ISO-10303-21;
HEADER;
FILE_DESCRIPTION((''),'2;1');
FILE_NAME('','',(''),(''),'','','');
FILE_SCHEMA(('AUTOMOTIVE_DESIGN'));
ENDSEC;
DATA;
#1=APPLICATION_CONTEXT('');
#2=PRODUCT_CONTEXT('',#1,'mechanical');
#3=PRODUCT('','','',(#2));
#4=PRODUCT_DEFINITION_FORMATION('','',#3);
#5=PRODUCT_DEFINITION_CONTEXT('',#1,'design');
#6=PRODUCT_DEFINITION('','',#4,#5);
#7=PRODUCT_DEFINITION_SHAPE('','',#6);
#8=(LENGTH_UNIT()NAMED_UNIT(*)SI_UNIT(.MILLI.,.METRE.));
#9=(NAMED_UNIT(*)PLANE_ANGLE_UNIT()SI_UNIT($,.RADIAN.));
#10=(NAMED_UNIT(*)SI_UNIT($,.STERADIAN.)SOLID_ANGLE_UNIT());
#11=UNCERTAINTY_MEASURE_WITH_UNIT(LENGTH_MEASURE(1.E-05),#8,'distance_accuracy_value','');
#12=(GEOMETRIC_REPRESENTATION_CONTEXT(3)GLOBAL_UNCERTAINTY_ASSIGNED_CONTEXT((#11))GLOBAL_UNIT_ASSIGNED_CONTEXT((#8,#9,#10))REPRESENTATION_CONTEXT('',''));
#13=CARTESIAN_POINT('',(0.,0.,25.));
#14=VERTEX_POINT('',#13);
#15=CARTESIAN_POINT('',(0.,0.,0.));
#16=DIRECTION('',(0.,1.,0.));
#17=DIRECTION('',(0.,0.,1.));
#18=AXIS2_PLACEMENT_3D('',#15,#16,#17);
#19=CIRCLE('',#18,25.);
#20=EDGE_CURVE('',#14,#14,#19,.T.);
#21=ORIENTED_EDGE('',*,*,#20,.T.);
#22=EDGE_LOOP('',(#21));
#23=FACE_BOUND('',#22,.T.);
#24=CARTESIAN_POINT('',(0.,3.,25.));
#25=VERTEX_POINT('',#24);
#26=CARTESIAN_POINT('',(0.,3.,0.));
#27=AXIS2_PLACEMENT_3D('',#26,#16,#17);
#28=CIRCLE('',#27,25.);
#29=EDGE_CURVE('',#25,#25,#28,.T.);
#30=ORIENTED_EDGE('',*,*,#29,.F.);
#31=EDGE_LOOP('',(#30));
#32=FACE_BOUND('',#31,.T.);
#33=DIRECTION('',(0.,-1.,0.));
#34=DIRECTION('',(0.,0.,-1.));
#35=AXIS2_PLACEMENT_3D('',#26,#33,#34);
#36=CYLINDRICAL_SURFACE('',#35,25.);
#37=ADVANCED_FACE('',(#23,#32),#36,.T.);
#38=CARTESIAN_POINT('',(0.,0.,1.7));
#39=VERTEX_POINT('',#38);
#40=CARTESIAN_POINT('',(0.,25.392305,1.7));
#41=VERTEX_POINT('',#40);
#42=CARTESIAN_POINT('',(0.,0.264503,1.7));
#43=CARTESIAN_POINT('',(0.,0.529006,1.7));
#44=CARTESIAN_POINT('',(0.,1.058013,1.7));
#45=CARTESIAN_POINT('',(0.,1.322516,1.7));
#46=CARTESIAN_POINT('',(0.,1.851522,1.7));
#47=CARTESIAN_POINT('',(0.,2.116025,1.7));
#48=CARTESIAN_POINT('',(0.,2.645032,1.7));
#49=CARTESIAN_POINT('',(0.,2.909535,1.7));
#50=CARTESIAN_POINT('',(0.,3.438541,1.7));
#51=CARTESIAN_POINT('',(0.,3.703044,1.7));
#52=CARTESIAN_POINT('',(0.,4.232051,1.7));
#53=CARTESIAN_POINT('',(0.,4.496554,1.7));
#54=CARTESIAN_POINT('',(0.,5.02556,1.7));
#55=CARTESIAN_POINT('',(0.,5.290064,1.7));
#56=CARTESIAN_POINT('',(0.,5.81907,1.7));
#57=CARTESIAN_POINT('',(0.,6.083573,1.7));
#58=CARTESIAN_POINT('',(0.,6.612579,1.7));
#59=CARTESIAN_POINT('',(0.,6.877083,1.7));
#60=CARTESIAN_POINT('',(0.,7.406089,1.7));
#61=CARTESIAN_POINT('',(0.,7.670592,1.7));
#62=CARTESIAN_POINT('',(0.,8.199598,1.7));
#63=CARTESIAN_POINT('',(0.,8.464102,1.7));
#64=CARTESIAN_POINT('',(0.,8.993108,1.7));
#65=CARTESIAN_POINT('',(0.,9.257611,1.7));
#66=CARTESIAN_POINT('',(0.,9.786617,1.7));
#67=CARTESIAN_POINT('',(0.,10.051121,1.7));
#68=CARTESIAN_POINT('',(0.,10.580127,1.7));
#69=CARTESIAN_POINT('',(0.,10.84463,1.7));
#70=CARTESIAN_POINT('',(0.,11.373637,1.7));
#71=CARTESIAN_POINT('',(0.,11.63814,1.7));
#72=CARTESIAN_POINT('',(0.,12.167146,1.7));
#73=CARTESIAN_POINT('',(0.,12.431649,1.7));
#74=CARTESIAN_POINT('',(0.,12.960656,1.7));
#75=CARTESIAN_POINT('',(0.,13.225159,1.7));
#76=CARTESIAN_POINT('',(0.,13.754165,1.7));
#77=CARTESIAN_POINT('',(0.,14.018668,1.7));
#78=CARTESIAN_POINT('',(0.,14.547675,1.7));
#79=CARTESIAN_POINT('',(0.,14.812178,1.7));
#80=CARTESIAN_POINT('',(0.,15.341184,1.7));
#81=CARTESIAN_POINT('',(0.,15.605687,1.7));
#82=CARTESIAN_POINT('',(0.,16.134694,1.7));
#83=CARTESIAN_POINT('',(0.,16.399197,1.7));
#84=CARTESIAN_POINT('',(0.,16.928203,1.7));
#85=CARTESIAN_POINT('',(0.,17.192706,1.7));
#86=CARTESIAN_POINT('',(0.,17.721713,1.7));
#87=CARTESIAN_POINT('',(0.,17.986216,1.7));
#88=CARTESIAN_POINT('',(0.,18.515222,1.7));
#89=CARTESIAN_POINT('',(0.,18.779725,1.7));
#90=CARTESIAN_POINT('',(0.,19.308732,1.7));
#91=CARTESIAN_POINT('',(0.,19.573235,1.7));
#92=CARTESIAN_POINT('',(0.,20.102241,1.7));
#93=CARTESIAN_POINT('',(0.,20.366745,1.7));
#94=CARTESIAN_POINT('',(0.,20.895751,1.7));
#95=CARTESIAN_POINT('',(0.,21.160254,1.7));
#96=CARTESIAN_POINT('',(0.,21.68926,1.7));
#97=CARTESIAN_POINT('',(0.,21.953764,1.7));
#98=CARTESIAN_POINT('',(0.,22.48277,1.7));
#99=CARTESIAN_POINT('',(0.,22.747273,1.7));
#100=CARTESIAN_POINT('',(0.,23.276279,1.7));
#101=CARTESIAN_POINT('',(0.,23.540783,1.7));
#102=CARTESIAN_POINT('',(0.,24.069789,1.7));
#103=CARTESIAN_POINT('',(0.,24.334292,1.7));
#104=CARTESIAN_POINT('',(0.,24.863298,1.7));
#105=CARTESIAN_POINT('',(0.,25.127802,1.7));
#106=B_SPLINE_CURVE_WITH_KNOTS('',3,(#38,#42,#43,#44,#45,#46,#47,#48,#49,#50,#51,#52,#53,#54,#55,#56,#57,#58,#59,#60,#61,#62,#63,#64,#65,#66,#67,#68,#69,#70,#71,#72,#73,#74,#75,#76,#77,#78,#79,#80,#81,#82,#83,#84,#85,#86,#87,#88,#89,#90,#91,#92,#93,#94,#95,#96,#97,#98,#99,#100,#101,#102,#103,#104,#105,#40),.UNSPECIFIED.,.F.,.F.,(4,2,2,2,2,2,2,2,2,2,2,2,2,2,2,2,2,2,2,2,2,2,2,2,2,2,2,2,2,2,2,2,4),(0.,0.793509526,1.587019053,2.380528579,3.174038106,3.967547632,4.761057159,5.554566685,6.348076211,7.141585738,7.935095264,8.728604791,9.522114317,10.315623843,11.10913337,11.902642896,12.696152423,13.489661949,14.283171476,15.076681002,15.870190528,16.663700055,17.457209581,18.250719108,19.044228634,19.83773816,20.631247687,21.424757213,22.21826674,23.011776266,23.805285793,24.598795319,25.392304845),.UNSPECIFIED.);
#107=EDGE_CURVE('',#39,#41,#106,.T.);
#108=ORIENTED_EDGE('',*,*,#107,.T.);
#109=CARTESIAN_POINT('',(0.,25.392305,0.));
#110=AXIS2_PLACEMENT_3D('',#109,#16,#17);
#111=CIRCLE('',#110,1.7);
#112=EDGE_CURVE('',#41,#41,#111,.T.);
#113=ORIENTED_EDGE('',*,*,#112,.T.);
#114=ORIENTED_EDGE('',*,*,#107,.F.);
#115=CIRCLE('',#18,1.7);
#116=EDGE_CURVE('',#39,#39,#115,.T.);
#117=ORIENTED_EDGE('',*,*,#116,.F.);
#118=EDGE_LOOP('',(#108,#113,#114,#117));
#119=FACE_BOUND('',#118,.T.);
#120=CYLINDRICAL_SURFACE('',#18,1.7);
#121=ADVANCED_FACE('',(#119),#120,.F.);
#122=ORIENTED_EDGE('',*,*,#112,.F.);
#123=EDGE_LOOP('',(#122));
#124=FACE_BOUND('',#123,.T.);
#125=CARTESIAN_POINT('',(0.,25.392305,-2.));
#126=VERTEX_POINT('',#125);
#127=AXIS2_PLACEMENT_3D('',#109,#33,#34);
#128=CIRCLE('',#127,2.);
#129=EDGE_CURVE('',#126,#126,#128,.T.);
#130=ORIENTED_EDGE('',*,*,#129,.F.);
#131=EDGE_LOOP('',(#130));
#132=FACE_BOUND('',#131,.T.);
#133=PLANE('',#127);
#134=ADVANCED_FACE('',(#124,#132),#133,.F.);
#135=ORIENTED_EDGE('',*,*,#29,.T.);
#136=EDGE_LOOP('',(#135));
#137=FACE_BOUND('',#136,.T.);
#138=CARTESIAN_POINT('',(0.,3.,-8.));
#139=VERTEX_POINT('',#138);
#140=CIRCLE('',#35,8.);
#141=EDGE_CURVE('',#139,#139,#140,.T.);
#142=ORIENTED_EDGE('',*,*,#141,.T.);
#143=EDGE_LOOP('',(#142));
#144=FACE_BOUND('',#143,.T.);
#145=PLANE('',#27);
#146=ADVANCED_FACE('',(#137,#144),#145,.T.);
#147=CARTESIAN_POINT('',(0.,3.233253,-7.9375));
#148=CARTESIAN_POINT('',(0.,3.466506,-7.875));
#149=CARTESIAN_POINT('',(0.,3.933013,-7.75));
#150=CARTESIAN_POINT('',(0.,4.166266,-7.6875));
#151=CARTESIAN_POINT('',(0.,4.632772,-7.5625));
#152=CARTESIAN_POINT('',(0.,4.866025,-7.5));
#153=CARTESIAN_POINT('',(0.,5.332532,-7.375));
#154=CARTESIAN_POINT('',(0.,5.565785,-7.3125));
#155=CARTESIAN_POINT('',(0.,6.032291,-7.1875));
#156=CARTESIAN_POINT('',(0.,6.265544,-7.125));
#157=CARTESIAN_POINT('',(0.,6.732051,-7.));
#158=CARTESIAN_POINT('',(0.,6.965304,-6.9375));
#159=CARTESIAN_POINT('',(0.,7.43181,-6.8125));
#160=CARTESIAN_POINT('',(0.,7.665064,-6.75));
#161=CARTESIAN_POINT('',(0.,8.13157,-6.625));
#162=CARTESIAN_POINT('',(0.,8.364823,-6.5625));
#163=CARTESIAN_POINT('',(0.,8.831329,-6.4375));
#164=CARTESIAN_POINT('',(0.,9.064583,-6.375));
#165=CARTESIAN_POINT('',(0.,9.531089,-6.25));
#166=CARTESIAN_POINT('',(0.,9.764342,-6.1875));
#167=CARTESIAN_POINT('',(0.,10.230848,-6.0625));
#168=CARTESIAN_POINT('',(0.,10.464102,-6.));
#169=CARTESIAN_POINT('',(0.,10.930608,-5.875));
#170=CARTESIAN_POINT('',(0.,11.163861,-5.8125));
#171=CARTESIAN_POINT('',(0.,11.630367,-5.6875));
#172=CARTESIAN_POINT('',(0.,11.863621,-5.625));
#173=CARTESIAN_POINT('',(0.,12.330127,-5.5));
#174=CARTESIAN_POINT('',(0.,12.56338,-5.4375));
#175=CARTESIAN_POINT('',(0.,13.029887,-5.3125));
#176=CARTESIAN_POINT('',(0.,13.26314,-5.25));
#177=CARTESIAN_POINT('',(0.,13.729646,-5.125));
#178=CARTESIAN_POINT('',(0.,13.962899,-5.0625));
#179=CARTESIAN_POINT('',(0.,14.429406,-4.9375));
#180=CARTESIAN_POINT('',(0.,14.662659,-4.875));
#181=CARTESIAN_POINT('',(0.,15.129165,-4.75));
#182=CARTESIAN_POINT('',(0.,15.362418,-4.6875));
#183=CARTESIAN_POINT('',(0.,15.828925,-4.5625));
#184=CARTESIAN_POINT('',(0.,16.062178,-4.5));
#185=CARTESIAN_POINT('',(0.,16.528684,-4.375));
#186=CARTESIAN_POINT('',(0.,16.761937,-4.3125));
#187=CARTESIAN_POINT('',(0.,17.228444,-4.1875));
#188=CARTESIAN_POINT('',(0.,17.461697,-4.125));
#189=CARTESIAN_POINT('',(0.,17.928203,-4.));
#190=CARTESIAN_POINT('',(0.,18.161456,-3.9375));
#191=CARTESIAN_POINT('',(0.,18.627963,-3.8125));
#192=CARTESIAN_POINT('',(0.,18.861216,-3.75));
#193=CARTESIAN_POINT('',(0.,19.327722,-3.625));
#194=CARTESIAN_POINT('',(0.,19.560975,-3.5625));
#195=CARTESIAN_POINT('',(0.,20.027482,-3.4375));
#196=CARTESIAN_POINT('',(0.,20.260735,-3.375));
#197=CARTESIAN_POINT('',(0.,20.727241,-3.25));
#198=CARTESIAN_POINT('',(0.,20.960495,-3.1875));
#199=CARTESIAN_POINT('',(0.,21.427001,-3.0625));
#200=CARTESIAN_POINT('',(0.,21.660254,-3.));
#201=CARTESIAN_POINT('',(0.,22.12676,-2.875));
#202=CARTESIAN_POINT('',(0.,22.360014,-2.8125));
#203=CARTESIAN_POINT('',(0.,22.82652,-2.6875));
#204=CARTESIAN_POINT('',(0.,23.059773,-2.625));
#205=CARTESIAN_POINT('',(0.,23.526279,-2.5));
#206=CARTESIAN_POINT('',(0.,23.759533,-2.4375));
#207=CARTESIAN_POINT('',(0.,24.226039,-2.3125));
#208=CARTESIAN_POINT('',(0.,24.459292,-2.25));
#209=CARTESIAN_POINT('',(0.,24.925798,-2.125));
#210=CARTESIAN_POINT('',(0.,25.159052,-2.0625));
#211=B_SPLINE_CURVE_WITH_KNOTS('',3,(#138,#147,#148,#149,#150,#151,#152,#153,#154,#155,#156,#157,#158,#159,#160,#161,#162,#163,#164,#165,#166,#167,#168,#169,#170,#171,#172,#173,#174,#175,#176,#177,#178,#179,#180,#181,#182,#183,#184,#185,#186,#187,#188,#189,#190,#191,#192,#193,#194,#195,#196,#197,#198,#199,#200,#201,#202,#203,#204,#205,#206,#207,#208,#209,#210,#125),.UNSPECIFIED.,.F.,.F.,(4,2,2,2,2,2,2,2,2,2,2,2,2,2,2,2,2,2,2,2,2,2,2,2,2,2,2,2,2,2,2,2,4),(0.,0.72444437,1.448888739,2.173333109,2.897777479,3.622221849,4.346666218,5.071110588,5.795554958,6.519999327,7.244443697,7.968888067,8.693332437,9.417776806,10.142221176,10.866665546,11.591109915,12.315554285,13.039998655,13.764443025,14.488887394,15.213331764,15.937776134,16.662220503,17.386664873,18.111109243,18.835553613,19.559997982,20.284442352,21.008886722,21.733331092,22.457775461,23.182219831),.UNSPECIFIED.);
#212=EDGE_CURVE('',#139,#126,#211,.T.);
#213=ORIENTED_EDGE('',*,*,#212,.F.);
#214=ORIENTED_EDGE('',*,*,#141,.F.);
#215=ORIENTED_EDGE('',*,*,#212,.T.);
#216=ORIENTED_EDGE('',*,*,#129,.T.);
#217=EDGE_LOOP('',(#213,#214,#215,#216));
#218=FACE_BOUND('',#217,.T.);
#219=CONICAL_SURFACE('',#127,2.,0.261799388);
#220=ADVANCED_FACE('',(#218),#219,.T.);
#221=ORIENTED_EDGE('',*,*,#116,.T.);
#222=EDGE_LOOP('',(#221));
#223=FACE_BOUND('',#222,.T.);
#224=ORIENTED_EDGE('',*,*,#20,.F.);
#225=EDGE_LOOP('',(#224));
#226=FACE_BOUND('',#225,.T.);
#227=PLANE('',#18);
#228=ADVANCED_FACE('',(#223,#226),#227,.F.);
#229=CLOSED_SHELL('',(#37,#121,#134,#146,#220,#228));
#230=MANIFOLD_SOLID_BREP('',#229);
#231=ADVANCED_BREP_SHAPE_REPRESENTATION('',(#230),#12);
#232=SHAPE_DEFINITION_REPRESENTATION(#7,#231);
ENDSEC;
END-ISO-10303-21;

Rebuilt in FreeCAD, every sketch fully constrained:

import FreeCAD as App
import Part
import Sketcher
Q = App.Units.Quantity


def add_polygon(sketch, points):
    """Adds a closed chain of lines whose ends are joined by coincident constraints."""
    first, n = sketch.GeometryCount, len(points)
    for a, b in zip(points, points[1:] + points[:1]):
        sketch.addGeometry(Part.LineSegment(App.Vector(*a, 0), App.Vector(*b, 0)), False)
    for i in range(n):
        sketch.addConstraint(Sketcher.Constraint("Coincident", first + i, 2, first + (i + 1) % n, 1))

doc = App.newDocument("Part")
body = doc.addObject("PartDesign::Body", "Body")

sketch1 = body.newObject("Sketcher::SketchObject", "Sketch")
sketch1.AttachmentSupport = (doc.getObject("XZ_Plane"), [""])
sketch1.MapMode = "FlatFace"
sketch1.addGeometry(Part.Circle(App.Vector(0, 0, 0), App.Vector(0, 0, 1), 25), False)
sketch1.addConstraint(Sketcher.Constraint("Coincident", 0, 3, -1, 1))
sketch1.addConstraint(Sketcher.Constraint("Diameter", 0, 50.0))
pad1 = body.newObject("PartDesign::Pad", "Pad")
pad1.Profile = sketch1
pad1.Length = 3
pad1.Reversed = True

sketch2 = body.newObject("Sketcher::SketchObject", "Sketch001")
sketch2.AttachmentSupport = (doc.getObject("YZ_Plane"), [""])
sketch2.MapMode = "FlatFace"
add_polygon(sketch2, [(25.392305, 2), (3, 8), (3, 0), (25.392305, 0)])
sketch2.addConstraint(Sketcher.Constraint("Vertical", 1))
sketch2.addConstraint(Sketcher.Constraint("Horizontal", 2))
sketch2.addConstraint(Sketcher.Constraint("Vertical", 3))
sketch2.addConstraint(Sketcher.Constraint("PointOnObject", 1, 2, -1))
sketch2.addConstraint(Sketcher.Constraint("DistanceY", 1, 2, 1, 1, 8.0))
sketch2.addConstraint(Sketcher.Constraint("DistanceY", 3, 1, 3, 2, 2.0))
sketch2.addConstraint(Sketcher.Constraint("Angle", 0, Q("165 deg")))
sketch2.addConstraint(Sketcher.Constraint("DistanceX", -1, 1, 0, 2, 3.0))
revolution = body.newObject("PartDesign::Revolution", "Revolution")
revolution.Profile = sketch2
revolution.ReferenceAxis = (sketch2, ["H_Axis"])
revolution.Angle = 360

sketch3 = body.newObject("Sketcher::SketchObject", "Sketch002")
sketch3.AttachmentSupport = (doc.getObject("XZ_Plane"), [""])
sketch3.MapMode = "FlatFace"
sketch3.AttachmentOffset = App.Placement(App.Vector(0, 0, -25.392305), App.Rotation())
sketch3.addGeometry(Part.Circle(App.Vector(0, 0, 0), App.Vector(0, 0, 1), 1.7), False)
sketch3.addConstraint(Sketcher.Constraint("Coincident", 0, 3, -1, 1))
sketch3.addConstraint(Sketcher.Constraint("Diameter", 0, 3.4))
pocket1 = body.newObject("PartDesign::Pocket", "Pocket")
pocket1.Profile = sketch3
pocket1.Type = "ThroughAll"
pocket1.Reversed = True

doc.recompute()
